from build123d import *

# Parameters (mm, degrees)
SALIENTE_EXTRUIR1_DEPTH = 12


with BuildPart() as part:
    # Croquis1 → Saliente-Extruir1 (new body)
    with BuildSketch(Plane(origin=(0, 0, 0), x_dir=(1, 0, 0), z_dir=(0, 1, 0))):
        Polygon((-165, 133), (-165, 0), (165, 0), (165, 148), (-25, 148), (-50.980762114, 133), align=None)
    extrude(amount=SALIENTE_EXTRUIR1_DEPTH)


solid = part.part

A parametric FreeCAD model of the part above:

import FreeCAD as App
import Part
import Sketcher

V = App.Vector
Q = App.Units.Quantity

doc = App.newDocument("Part")
params = doc.addObject("Spreadsheet::Sheet", "Params")
for row, (alias, value) in enumerate([
    ("sketch1_width", "330 mm"),
    ("sketch1_width2", "190 mm"),
    ("sketch1_height", "133 mm"),
    ("sketch1_height2", "148 mm"),
    ("pad1_length", "12 mm"),
], start=1):
    params.set(f"A{row}", alias)
    params.set(f"B{row}", "=" + value)
    params.setAlias(f"B{row}", alias)

body = doc.addObject("PartDesign::Body", "Body")

# Sketch on XZ plane
sketch1 = body.newObject("Sketcher::SketchObject", "Sketch")
sketch1.AttachmentSupport = (doc.getObject("XZ_Plane"), [""])
sketch1.MapMode = "FlatFace"
sketch1.addGeometry([
    Part.LineSegment(V(-165, -133, 0), V(-165, 0, 0)),  # 0
    Part.LineSegment(V(-165, 0, 0), V(165, 0, 0)),  # 1
    Part.LineSegment(V(165, 0, 0), V(165, -148, 0)),  # 2
    Part.LineSegment(V(165, -148, 0), V(-25, -148, 0)),  # 3
    Part.LineSegment(V(-25, -148, 0), V(-51, -133, 0)),  # 4
    Part.LineSegment(V(-51, -133, 0), V(-165, -133, 0)),  # 5
], False)
sketch1.addConstraint([
    Sketcher.Constraint("Coincident", 0, 2, 1, 1),
    Sketcher.Constraint("Coincident", 1, 2, 2, 1),
    Sketcher.Constraint("Coincident", 2, 2, 3, 1),
    Sketcher.Constraint("Coincident", 3, 2, 4, 1),
    Sketcher.Constraint("Coincident", 4, 2, 5, 1),
    Sketcher.Constraint("Coincident", 5, 2, 0, 1),
    Sketcher.Constraint("Vertical", 0),
    Sketcher.Constraint("Horizontal", 1),
    Sketcher.Constraint("Vertical", 2),
    Sketcher.Constraint("Horizontal", 3),
    Sketcher.Constraint("Horizontal", 5),
    Sketcher.Constraint("Symmetric", 0, 2, 1, 2, -1, 1),
    Sketcher.Constraint("DistanceX", 1, 1, 1, 2, 330.0),
    Sketcher.Constraint("DistanceX", 3, 2, 3, 1, 190.0),
    Sketcher.Constraint("DistanceY", 0, 1, 0, 2, 133.0),
    Sketcher.Constraint("DistanceY", 2, 2, 2, 1, 148.0),
    Sketcher.Constraint("Angle", 4, Q("150 deg")),
])
sketch1.setExpression("Constraints[12]", "Params.sketch1_width")
sketch1.setExpression("Constraints[13]", "Params.sketch1_width2")
sketch1.setExpression("Constraints[14]", "Params.sketch1_height")
sketch1.setExpression("Constraints[15]", "Params.sketch1_height2")
pad1 = body.newObject("PartDesign::Pad", "Pad")
pad1.Profile = sketch1
pad1.setExpression("Length", "Params.pad1_length")
pad1.Reversed = True

doc.recompute()
